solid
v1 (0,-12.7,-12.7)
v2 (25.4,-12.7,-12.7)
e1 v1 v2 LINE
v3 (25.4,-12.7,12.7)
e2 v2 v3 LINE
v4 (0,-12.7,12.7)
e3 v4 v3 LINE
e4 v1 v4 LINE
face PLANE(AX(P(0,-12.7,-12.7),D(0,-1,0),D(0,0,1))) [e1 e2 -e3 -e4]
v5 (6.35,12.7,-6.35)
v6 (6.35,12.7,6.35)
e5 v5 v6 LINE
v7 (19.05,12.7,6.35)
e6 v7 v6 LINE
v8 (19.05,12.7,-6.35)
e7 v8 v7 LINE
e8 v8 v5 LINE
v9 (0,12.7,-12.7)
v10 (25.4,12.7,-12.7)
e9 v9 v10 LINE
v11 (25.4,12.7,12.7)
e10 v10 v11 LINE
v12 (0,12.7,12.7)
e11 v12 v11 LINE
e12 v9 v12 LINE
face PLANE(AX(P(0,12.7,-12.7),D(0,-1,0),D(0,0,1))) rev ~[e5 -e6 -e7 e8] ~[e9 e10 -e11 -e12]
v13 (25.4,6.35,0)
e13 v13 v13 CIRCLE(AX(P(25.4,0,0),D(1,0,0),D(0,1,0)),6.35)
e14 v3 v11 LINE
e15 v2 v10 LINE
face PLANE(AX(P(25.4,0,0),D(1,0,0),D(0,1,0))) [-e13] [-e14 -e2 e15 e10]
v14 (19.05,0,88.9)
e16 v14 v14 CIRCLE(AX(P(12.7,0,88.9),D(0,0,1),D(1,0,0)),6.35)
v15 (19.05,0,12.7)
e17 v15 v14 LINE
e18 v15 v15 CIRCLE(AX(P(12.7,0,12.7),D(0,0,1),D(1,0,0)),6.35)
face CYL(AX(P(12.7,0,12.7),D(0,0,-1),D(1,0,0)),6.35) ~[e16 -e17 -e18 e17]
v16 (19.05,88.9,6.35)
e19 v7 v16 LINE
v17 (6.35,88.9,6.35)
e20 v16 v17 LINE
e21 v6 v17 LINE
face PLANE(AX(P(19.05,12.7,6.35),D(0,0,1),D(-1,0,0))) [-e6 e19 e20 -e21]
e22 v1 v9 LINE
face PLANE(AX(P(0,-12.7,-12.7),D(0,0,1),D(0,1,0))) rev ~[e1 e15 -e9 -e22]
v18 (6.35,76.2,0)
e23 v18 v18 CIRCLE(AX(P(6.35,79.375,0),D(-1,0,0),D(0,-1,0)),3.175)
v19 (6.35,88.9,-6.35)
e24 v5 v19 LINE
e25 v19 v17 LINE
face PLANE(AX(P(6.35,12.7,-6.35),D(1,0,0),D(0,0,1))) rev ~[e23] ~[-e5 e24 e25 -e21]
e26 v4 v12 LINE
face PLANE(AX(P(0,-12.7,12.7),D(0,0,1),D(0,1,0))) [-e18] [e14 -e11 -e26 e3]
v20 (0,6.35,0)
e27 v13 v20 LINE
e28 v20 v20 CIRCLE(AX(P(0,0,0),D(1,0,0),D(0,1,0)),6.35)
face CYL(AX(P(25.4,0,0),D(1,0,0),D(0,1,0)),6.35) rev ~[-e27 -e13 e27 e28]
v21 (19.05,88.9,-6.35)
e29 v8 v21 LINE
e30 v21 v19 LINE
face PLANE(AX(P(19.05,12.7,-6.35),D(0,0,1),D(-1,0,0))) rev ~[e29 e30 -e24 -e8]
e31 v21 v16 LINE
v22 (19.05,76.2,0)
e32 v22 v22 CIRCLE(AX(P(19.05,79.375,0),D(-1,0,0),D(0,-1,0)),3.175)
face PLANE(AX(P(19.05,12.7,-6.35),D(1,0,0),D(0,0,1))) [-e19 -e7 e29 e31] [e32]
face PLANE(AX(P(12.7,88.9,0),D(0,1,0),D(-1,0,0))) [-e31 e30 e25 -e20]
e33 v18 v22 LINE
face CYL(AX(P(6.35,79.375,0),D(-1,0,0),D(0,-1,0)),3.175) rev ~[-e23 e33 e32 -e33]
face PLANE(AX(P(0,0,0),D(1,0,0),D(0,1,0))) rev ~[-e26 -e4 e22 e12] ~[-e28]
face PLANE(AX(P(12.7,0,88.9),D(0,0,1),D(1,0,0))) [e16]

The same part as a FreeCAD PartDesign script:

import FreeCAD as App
import Part
import Sketcher
from FreeCAD import Vector
Q = App.Units.Quantity


def add_polygon(sketch, points):
    """Adds a closed chain of lines whose ends are joined by coincident constraints."""
    first, n = sketch.GeometryCount, len(points)
    for a, b in zip(points, points[1:] + points[:1]):
        sketch.addGeometry(Part.LineSegment(App.Vector(*a, 0), App.Vector(*b, 0)), False)
    for i in range(n):
        sketch.addConstraint(Sketcher.Constraint("Coincident", first + i, 2, first + (i + 1) % n, 1))

doc = App.newDocument("Part")
body = doc.addObject("PartDesign::Body", "Body")

# Sketch on YZ plane
sketch1 = body.newObject("Sketcher::SketchObject", "Sketch")
sketch1.AttachmentSupport = (doc.getObject("YZ_Plane"), [""])
sketch1.MapMode = "FlatFace"
add_polygon(sketch1, [(-13, 13), (-13, -13), (13, -13), (13, 13)])  # lines 0-3
sketch1.addConstraint([
    Sketcher.Constraint("Vertical", 0),
    Sketcher.Constraint("Horizontal", 1),
    Sketcher.Constraint("Vertical", 2),
    Sketcher.Constraint("Horizontal", 3),
    Sketcher.Constraint("Symmetric", 0, 2, 2, 2, -1, 1),
    Sketcher.Constraint("Equal", 3, 0),
    Sketcher.Constraint("DistanceX", 1, 1, 1, 2, Q("1 in")),
])
pad1 = body.newObject("PartDesign::Pad", "Pad")
pad1.Profile = sketch1
pad1.Length = Q("1 in")

# Sketch on YZ plane
sketch2 = body.newObject("Sketcher::SketchObject", "Sketch001")
sketch2.AttachmentSupport = (doc.getObject("YZ_Plane"), [""])
sketch2.MapMode = "FlatFace"
sketch2.AttachmentOffset = App.Placement(Vector(0, 0, 1 * 25.4), App.Rotation())
sketch2.addGeometry(Part.Circle(Vector(0, 0, 0), Vector(0, 0, 1), 6), False)
sketch2.addConstraint([
    Sketcher.Constraint("Coincident", 0, 3, -1, 1),
    Sketcher.Constraint("Diameter", 0, Q("0.5 in")),
])
pocket1 = body.newObject("PartDesign::Pocket", "Pocket")
pocket1.Profile = sketch2
pocket1.Length = Q("1 in")

# Sketch on XY plane
sketch3 = body.newObject("Sketcher::SketchObject", "Sketch002")
sketch3.AttachmentSupport = (doc.getObject("XY_Plane"), [""])
sketch3.MapMode = "FlatFace"
sketch3.AttachmentOffset = App.Placement(Vector(0, 0, 0.5 * 25.4), App.Rotation())
sketch3.addGeometry(Part.Circle(Vector(13, 0, 0), Vector(0, 0, 1), 6), False)
sketch3.addConstraint([
    Sketcher.Constraint("PointOnObject", 0, 3, -1),
    Sketcher.Constraint("Diameter", 0, Q("0.5 in")),
    Sketcher.Constraint("DistanceX", -1, 1, 0, 3, Q("0.5 in")),
])
pad2 = body.newObject("PartDesign::Pad", "Pad001")
pad2.Profile = sketch3
pad2.Length = Q("3 in")

# Sketch on XZ plane
sketch4 = body.newObject("Sketcher::SketchObject", "Sketch003")
sketch4.AttachmentSupport = (doc.getObject("XZ_Plane"), [""])
sketch4.MapMode = "FlatFace"
sketch4.AttachmentOffset = App.Placement(Vector(0, 0, -0.5 * 25.4), App.Rotation())
add_polygon(sketch4, [(19, 6), (19, -6), (6, -6), (6, 6)])  # lines 0-3
sketch4.addConstraint([
    Sketcher.Constraint("Vertical", 0),
    Sketcher.Constraint("Horizontal", 1),
    Sketcher.Constraint("Vertical", 2),
    Sketcher.Constraint("Horizontal", 3),
    Sketcher.Constraint("Equal", 3, 0),
    Sketcher.Constraint("DistanceX", 1, 2, 1, 1, Q("0.5 in")),
    Sketcher.Constraint("DistanceX", -1, 1, 0, 2, Q("0.75 in")),
    Sketcher.Constraint("DistanceY", 0, 2, -1, 1, Q("0.25 in")),
])
pad3 = body.newObject("PartDesign::Pad", "Pad002")
pad3.Profile = sketch4
pad3.Length = Q("3 in")
pad3.Reversed = True

# Sketch on YZ plane
sketch5 = body.newObject("Sketcher::SketchObject", "Sketch004")
sketch5.AttachmentSupport = (doc.getObject("YZ_Plane"), [""])
sketch5.MapMode = "FlatFace"
sketch5.AttachmentOffset = App.Placement(Vector(0, 0, 0.25 * 25.4), App.Rotation())
sketch5.addGeometry(Part.Circle(Vector(79.4, 0, 0), Vector(0, 0, 1), 3.2), False)
sketch5.addConstraint([
    Sketcher.Constraint("PointOnObject", 0, 3, -1),
    Sketcher.Constraint("Diameter", 0, Q("0.25 in")),
    Sketcher.Constraint("DistanceX", -1, 1, 0, 3, Q("3.125 in")),
])
pocket2 = body.newObject("PartDesign::Pocket", "Pocket001")
pocket2.Profile = sketch5
pocket2.Length = Q("1 in")
pocket2.Reversed = True

doc.recompute()
